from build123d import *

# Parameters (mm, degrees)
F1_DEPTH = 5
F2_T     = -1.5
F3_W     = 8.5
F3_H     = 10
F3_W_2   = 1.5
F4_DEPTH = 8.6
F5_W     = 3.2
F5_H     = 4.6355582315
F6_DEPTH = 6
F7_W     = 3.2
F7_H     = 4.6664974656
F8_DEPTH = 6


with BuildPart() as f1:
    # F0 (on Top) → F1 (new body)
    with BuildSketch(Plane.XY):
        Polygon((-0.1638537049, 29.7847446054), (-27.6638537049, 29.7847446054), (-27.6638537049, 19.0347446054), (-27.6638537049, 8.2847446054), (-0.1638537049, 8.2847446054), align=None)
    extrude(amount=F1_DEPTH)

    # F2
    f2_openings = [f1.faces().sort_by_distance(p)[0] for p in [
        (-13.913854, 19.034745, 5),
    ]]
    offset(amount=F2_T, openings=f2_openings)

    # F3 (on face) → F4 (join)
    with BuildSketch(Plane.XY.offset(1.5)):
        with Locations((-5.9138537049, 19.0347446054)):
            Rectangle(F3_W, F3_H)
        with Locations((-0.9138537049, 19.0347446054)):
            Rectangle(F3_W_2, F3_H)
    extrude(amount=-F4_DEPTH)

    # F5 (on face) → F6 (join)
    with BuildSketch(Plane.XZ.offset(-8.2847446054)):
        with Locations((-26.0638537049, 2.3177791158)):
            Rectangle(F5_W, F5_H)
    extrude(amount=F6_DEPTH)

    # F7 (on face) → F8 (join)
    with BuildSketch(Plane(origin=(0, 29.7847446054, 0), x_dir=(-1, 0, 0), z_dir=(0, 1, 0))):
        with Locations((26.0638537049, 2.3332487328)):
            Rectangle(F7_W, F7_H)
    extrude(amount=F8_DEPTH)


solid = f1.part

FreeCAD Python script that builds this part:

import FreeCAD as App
import Part
import Sketcher

V = App.Vector
Q = App.Units.Quantity


def faces_at(feature, points):
    """Names of the faces that lie closest to the given points."""
    faces = feature.Shape.Faces
    near = lambda p: min(range(len(faces)), key=lambda i: faces[i].distToShape(Part.Vertex(*p))[0])
    return sorted({f"Face{near(p) + 1}" for p in points})

doc = App.newDocument("Part")
body = doc.addObject("PartDesign::Body", "Body")

sketch1 = doc.addObject("Sketcher::SketchObject", "Sketch")
body.addObject(sketch1)
sketch1.AttachmentSupport = (doc.XY_Plane, [""])
sketch1.MapMode = "FlatFace"
sketch1.addGeometry([
    Part.LineSegment(V(0, 30, 0), V(-28, 30, 0)),
    Part.LineSegment(V(-28, 30, 0), V(-28, 8, 0)),
    Part.LineSegment(V(-28, 8, 0), V(0, 8, 0)),
    Part.LineSegment(V(0, 8, 0), V(0, 30, 0)),
], False)
sketch1.addConstraint([
    Sketcher.Constraint("Coincident", 0, 2, 1, 1),
    Sketcher.Constraint("Coincident", 1, 2, 2, 1),
    Sketcher.Constraint("Coincident", 2, 2, 3, 1),
    Sketcher.Constraint("Coincident", 3, 2, 0, 1),
    Sketcher.Constraint("Horizontal", 0),
    Sketcher.Constraint("Vertical", 1),
    Sketcher.Constraint("Horizontal", 2),
    Sketcher.Constraint("Vertical", 3),
    Sketcher.Constraint("DistanceX", 0, 2, 0, 1, Q("27.5 mm")),
    Sketcher.Constraint("DistanceY", 1, 2, 1, 1, Q("21.5 mm")),
    Sketcher.Constraint("DistanceX", 0, 2, -1, 1, Q("27.663854 mm")),
    Sketcher.Constraint("DistanceY", -1, 1, 0, 2, Q("29.784745 mm")),
])
pad1 = doc.addObject("PartDesign::Pad", "Pad")
body.addObject(pad1)
pad1.Profile = sketch1
pad1.Length = 5
doc.recompute()

thickness = doc.addObject("PartDesign::Thickness", "Thickness")
body.addObject(thickness)
thickness.Base = (pad1, faces_at(pad1, [(-13.914, 19.035, 5)]))
thickness.Value = 1.5
thickness.Reversed = True
thickness.Join = "Arc"

sketch2 = doc.addObject("Sketcher::SketchObject", "Sketch001")
body.addObject(sketch2)
sketch2.AttachmentSupport = (doc.XY_Plane, [""])
sketch2.MapMode = "FlatFace"
sketch2.AttachmentOffset = App.Placement(V(0, 0, 1.5), App.Rotation())
sketch2.addGeometry([
    Part.LineSegment(V(-10, 24, 0), V(-10, 14, 0)),
    Part.LineSegment(V(-10, 14, 0), V(0, 14, 0)),
    Part.LineSegment(V(0, 14, 0), V(0, 24, 0)),
    Part.LineSegment(V(0, 24, 0), V(-10, 24, 0)),
], False)
sketch2.addConstraint([
    Sketcher.Constraint("Coincident", 0, 2, 1, 1),
    Sketcher.Constraint("Coincident", 1, 2, 2, 1),
    Sketcher.Constraint("Coincident", 2, 2, 3, 1),
    Sketcher.Constraint("Coincident", 3, 2, 0, 1),
    Sketcher.Constraint("Vertical", 0),
    Sketcher.Constraint("Horizontal", 1),
    Sketcher.Constraint("Vertical", 2),
    Sketcher.Constraint("Horizontal", 3),
    Sketcher.Constraint("Equal", 3, 0),
    Sketcher.Constraint("DistanceX", 1, 1, 1, 2, Q("10 mm")),
    Sketcher.Constraint("DistanceX", 0, 2, -1, 1, Q("10.163854 mm")),
    Sketcher.Constraint("DistanceY", -1, 1, 0, 2, Q("14.034745 mm")),
])
pad2 = doc.addObject("PartDesign::Pad", "Pad001")
body.addObject(pad2)
pad2.Profile = sketch2
pad2.Length = 8.6
pad2.Reversed = True

sketch3 = doc.addObject("Sketcher::SketchObject", "Sketch002")
body.addObject(sketch3)
sketch3.AttachmentSupport = (doc.XZ_Plane, [""])
sketch3.MapMode = "FlatFace"
sketch3.AttachmentOffset = App.Placement(V(0, 0, -8.284745), App.Rotation())
sketch3.addGeometry([
    Part.LineSegment(V(-27.7, 4.6, 0), V(-27.7, 0, 0)),
    Part.LineSegment(V(-27.7, 0, 0), V(-24.5, 0, 0)),
    Part.LineSegment(V(-24.5, 0, 0), V(-24.5, 4.6, 0)),
    Part.LineSegment(V(-24.5, 4.6, 0), V(-27.7, 4.6, 0)),
], False)
sketch3.addConstraint([
    Sketcher.Constraint("Coincident", 0, 2, 1, 1),
    Sketcher.Constraint("Coincident", 1, 2, 2, 1),
    Sketcher.Constraint("Coincident", 2, 2, 3, 1),
    Sketcher.Constraint("Coincident", 3, 2, 0, 1),
    Sketcher.Constraint("Vertical", 0),
    Sketcher.Constraint("Horizontal", 1),
    Sketcher.Constraint("Vertical", 2),
    Sketcher.Constraint("Horizontal", 3),
    Sketcher.Constraint("PointOnObject", 0, 2, -1),
    Sketcher.Constraint("DistanceX", 1, 1, 1, 2, Q("3.2 mm")),
    Sketcher.Constraint("DistanceY", 0, 2, 0, 1, Q("4.635558 mm")),
    Sketcher.Constraint("DistanceX", 0, 2, -1, 1, Q("27.663854 mm")),
])
pad3 = doc.addObject("PartDesign::Pad", "Pad002")
body.addObject(pad3)
pad3.Profile = sketch3
pad3.Length = 6

sketch4 = doc.addObject("Sketcher::SketchObject", "Sketch003")
body.addObject(sketch4)
sketch4.AttachmentSupport = (doc.XZ_Plane, [""])
sketch4.MapMode = "FlatFace"
sketch4.AttachmentOffset = App.Placement(V(0, 0, -29.784745), App.Rotation())
sketch4.addGeometry([
    Part.LineSegment(V(-24.5, 4.7, 0), V(-24.5, 0, 0)),
    Part.LineSegment(V(-24.5, 0, 0), V(-27.7, 0, 0)),
    Part.LineSegment(V(-27.7, 0, 0), V(-27.7, 4.7, 0)),
    Part.LineSegment(V(-27.7, 4.7, 0), V(-24.5, 4.7, 0)),
], False)
sketch4.addConstraint([
    Sketcher.Constraint("Coincident", 0, 2, 1, 1),
    Sketcher.Constraint("Coincident", 1, 2, 2, 1),
    Sketcher.Constraint("Coincident", 2, 2, 3, 1),
    Sketcher.Constraint("Coincident", 3, 2, 0, 1),
    Sketcher.Constraint("Vertical", 0),
    Sketcher.Constraint("Horizontal", 1),
    Sketcher.Constraint("Vertical", 2),
    Sketcher.Constraint("Horizontal", 3),
    Sketcher.Constraint("PointOnObject", 0, 2, -1),
    Sketcher.Constraint("DistanceX", 1, 2, 1, 1, Q("3.2 mm")),
    Sketcher.Constraint("DistanceY", 0, 2, 0, 1, Q("4.666497 mm")),
    Sketcher.Constraint("DistanceX", 0, 2, -1, 1, Q("24.463854 mm")),
])
pad4 = doc.addObject("PartDesign::Pad", "Pad003")
body.addObject(pad4)
pad4.Profile = sketch4
pad4.Length = 6
pad4.Reversed = True

doc.recompute()
